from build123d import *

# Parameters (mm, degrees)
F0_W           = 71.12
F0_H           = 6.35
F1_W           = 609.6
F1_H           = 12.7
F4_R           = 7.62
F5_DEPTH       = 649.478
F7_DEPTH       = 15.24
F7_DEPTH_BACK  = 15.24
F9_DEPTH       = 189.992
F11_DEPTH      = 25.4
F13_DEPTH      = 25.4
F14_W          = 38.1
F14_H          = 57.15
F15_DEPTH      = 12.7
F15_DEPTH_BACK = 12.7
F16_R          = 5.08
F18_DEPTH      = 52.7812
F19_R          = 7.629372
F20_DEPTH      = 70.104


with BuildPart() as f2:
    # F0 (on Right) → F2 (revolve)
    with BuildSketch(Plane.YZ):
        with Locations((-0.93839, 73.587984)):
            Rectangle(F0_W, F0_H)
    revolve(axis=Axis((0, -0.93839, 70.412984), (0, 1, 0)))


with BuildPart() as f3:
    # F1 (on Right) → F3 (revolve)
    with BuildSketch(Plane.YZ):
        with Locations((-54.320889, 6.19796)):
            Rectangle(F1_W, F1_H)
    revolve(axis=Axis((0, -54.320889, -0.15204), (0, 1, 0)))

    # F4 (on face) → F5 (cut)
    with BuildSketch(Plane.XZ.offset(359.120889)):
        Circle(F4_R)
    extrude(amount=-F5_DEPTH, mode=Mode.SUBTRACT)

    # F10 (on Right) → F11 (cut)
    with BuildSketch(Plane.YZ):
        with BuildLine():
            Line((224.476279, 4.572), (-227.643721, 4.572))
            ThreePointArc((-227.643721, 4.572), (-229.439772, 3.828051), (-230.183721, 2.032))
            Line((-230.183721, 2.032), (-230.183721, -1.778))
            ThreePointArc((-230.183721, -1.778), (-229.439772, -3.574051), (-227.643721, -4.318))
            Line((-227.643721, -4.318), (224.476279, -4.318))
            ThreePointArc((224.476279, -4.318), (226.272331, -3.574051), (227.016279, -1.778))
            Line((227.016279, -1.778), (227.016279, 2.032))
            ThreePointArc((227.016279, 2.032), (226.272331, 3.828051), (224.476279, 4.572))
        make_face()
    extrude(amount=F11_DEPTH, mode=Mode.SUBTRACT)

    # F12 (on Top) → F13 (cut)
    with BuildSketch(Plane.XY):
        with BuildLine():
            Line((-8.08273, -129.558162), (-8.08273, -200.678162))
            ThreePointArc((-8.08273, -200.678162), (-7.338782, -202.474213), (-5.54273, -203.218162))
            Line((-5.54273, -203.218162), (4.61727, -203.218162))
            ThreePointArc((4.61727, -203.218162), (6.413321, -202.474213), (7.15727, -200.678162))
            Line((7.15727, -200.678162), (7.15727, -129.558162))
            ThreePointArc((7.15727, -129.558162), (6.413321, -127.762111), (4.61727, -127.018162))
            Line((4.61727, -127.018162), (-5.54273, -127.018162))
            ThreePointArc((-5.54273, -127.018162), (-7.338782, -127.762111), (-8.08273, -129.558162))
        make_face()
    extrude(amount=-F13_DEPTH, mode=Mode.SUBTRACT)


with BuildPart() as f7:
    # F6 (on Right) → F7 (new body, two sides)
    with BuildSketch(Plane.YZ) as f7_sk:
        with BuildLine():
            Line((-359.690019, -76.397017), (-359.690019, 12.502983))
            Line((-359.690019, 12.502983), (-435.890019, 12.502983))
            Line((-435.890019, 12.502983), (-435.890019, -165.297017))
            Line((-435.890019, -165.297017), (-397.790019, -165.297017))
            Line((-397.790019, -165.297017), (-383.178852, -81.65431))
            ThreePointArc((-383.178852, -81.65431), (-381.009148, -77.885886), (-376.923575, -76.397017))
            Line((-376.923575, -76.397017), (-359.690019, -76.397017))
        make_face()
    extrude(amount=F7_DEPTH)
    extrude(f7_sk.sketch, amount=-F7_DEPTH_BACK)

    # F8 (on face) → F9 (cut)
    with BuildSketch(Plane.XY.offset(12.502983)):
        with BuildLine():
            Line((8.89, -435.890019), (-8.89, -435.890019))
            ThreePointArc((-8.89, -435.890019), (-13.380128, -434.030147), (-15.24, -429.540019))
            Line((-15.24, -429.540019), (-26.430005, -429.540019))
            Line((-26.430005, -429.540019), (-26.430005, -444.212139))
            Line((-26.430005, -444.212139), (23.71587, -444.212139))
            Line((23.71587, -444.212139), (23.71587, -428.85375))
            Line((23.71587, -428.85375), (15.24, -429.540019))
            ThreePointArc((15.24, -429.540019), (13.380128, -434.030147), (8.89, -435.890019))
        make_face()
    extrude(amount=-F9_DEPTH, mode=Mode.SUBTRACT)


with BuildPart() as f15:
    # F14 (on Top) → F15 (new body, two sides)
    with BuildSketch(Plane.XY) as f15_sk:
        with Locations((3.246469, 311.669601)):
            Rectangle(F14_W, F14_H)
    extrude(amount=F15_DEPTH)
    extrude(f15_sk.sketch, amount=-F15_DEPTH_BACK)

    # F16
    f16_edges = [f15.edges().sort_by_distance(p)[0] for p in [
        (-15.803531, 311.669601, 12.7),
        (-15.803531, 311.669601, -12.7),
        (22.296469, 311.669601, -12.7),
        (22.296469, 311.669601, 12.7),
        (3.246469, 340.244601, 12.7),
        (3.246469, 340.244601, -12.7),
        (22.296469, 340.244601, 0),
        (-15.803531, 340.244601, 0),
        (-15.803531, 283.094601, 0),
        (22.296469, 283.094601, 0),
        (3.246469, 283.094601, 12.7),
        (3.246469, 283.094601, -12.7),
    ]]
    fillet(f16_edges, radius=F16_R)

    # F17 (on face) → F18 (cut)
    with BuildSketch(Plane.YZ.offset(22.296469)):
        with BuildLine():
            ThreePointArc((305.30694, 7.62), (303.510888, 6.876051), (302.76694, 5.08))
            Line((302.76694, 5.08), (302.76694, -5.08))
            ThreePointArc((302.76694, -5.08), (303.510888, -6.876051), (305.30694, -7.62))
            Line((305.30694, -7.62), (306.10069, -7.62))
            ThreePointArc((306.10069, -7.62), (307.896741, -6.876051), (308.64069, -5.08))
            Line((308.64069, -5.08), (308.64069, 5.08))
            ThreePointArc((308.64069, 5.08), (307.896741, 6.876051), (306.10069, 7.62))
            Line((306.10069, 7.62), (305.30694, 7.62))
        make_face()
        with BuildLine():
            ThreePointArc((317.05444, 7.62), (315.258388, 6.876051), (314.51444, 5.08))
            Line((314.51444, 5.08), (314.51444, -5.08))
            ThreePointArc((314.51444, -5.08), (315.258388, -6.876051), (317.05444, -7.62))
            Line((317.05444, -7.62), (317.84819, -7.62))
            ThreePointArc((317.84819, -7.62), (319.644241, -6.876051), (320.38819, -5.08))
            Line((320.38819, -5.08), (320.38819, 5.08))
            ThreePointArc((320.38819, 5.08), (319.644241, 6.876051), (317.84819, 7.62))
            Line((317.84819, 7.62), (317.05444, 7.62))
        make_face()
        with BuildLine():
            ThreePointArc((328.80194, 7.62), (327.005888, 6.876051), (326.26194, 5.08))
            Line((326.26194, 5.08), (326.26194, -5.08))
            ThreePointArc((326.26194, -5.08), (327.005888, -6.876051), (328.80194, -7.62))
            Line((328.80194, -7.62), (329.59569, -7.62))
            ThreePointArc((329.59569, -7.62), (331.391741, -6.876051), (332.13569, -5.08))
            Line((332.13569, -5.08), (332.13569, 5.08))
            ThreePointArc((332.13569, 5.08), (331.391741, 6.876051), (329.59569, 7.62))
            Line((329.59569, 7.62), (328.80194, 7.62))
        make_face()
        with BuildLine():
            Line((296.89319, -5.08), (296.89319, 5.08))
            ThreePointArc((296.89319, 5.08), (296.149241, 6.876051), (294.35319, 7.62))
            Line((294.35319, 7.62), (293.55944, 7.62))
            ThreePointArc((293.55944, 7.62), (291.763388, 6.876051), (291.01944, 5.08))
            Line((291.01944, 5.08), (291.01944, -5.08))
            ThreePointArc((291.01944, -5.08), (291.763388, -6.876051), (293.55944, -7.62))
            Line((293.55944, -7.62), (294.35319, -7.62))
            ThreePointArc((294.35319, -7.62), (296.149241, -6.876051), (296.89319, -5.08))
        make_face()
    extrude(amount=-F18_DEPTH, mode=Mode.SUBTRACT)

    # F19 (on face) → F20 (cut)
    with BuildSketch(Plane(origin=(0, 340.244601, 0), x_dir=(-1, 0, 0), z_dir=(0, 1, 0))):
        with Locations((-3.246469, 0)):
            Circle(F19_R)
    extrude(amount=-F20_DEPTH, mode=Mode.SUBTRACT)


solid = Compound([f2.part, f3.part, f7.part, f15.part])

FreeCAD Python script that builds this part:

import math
import FreeCAD as App
import Part
import Sketcher
from FreeCAD import Vector
Q = App.Units.Quantity

doc = App.newDocument("Part")
params = doc.addObject("Spreadsheet::Sheet", "Params")
for row, (alias, value) in enumerate([
    ("sketch1_width", "2.8 in"),
    ("sketch1_height", "0.25 in"),
    ("revolution_angle", "360 deg"),
    ("sketch2_width", "24 in"),
    ("sketch2_height", "0.5 in"),
    ("revolution2_angle", "360 deg"),
    ("sketch3_diameter", "0.6 in"),
    ("pocket1_length", "25.57 in"),
    ("sketch4_radius", "0.1 in"),
    ("sketch4_width", "17.8 in"),
    ("sketch4_height", "0.15 in"),
    ("pocket2_length", "1 in"),
    ("sketch5_radius", "0.1 in"),
    ("sketch5_width", "0.4 in"),
    ("sketch5_height", "2.8 in"),
    ("pocket3_length", "1 in"),
    ("sketch6_width", "3 in"),
    ("sketch6_height", "7 in"),
    ("sketch6_radius", "0.25 in"),
    ("sketch6_width2", "1.5 in"),
    ("sketch6_height2", "3.5 in"),
    ("pad1_length", "0.6 in"),
    ("pad1_length2", "0.6 in"),
    ("sketch7_radius", "0.25 in"),
    ("sketch7_width", "0.7 in"),
    ("pocket4_length", "7.48 in"),
    ("sketch8_width", "1.5 in"),
    ("sketch8_height", "2.25 in"),
    ("pad2_length", "0.5 in"),
    ("pad2_length2", "0.5 in"),
    ("fillet_radius", "0.2 in"),
    ("sketch9_radius", "0.1 in"),
    ("sketch9_height", "0.4 in"),
    ("sketch9_width", "0.03125 in"),
    ("pocket5_length", "2.078 in"),
    ("pocket6_length", "2.76 in"),
], start=1):
    params.set(f"A{row}", alias)
    params.set(f"B{row}", "=" + value)
    params.setAlias(f"B{row}", alias)

body = doc.addObject("PartDesign::Body", "Body")

# Sketch on YZ plane
sketch1 = body.newObject("Sketcher::SketchObject", "Sketch")
sketch1.AttachmentSupport = (doc.getObject("YZ_Plane"), [""])
sketch1.MapMode = "FlatFace"
sketch1.addGeometry([
    Part.LineSegment(Vector(-36, 77, 0), Vector(-36, 70, 0)),
    Part.LineSegment(Vector(-36, 70, 0), Vector(35, 70, 0)),
    Part.LineSegment(Vector(35, 70, 0), Vector(35, 77, 0)),
    Part.LineSegment(Vector(35, 77, 0), Vector(-36, 77, 0)),
], False)
sketch1.addGeometry(Part.LineSegment(Vector(-36, 70, 0), Vector(35, 70, 0)), True)  # axis
sketch1.addConstraint([
    Sketcher.Constraint("Coincident", 0, 2, 1, 1),
    Sketcher.Constraint("Coincident", 1, 2, 2, 1),
    Sketcher.Constraint("Coincident", 2, 2, 3, 1),
    Sketcher.Constraint("Coincident", 3, 2, 0, 1),
    Sketcher.Constraint("Vertical", 0),
    Sketcher.Constraint("Horizontal", 1),
    Sketcher.Constraint("Vertical", 2),
    Sketcher.Constraint("Horizontal", 3),
    Sketcher.Constraint("Horizontal", 4),
    Sketcher.Constraint("Coincident", 4, 1, 0, 2),
    Sketcher.Constraint("Vertical", 2, 2, 4, 2),
    Sketcher.Constraint("DistanceX", 1, 1, 1, 2, Q("2.8 in")),
    Sketcher.Constraint("DistanceY", 0, 2, 0, 1, Q("0.25 in")),
    Sketcher.Constraint("DistanceX", 0, 2, -1, 1, 36.49839),
    Sketcher.Constraint("DistanceY", -1, 1, 0, 2, 70.412984),
])
sketch1.setExpression("Constraints[11]", "Params.sketch1_width")
sketch1.setExpression("Constraints[12]", "Params.sketch1_height")
revolution = body.newObject("PartDesign::Revolution", "Revolution")
revolution.Profile = sketch1
revolution.ReferenceAxis = (sketch1, ["Axis0"])
revolution.setExpression("Angle", "Params.revolution_angle")
body2 = doc.addObject("PartDesign::Body", "Body001")

# Sketch on YZ plane
sketch2 = body2.newObject("Sketcher::SketchObject", "Sketch001")
sketch2.AttachmentSupport = (doc.getObject("YZ_Plane001"), [""])
sketch2.MapMode = "FlatFace"
sketch2.addGeometry([
    Part.LineSegment(Vector(-359, 13, 0), Vector(-359, 0, 0)),
    Part.LineSegment(Vector(-359, 0, 0), Vector(250, 0, 0)),
    Part.LineSegment(Vector(250, 0, 0), Vector(250, 13, 0)),
    Part.LineSegment(Vector(250, 13, 0), Vector(-359, 13, 0)),
], False)
sketch2.addGeometry(Part.LineSegment(Vector(-359, 0, 0), Vector(250, 0, 0)), True)  # axis
sketch2.addConstraint([
    Sketcher.Constraint("Coincident", 0, 2, 1, 1),
    Sketcher.Constraint("Coincident", 1, 2, 2, 1),
    Sketcher.Constraint("Coincident", 2, 2, 3, 1),
    Sketcher.Constraint("Coincident", 3, 2, 0, 1),
    Sketcher.Constraint("Vertical", 0),
    Sketcher.Constraint("Horizontal", 1),
    Sketcher.Constraint("Vertical", 2),
    Sketcher.Constraint("Horizontal", 3),
    Sketcher.Constraint("Horizontal", 4),
    Sketcher.Constraint("Coincident", 4, 1, 0, 2),
    Sketcher.Constraint("Vertical", 2, 2, 4, 2),
    Sketcher.Constraint("DistanceX", 1, 1, 1, 2, Q("24 in")),
    Sketcher.Constraint("DistanceY", 0, 2, 0, 1, Q("0.5 in")),
    Sketcher.Constraint("DistanceX", 0, 2, -1, 1, 359.120889),
    Sketcher.Constraint("DistanceY", 0, 2, -1, 1, 0.15204),
])
sketch2.setExpression("Constraints[11]", "Params.sketch2_width")
sketch2.setExpression("Constraints[12]", "Params.sketch2_height")
revolution2 = body2.newObject("PartDesign::Revolution", "Revolution001")
revolution2.Profile = sketch2
revolution2.ReferenceAxis = (sketch2, ["Axis0"])
revolution2.setExpression("Angle", "Params.revolution2_angle")

# Sketch on XZ plane
sketch3 = body2.newObject("Sketcher::SketchObject", "Sketch002")
sketch3.AttachmentSupport = (doc.getObject("XZ_Plane001"), [""])
sketch3.MapMode = "FlatFace"
sketch3.AttachmentOffset = App.Placement(Vector(0, 0, 359.120889), App.Rotation())
sketch3.addGeometry(Part.Circle(Vector(0, 0, 0), Vector(0, 0, 1), 8), False)
sketch3.addConstraint([
    Sketcher.Constraint("Coincident", 0, 3, -1, 1),
    Sketcher.Constraint("Diameter", 0, Q("0.6 in")),
])
sketch3.setExpression("Constraints[1]", "Params.sketch3_diameter")
pocket1 = body2.newObject("PartDesign::Pocket", "Pocket")
pocket1.Profile = sketch3
pocket1.setExpression("Length", "Params.pocket1_length")

# Sketch on YZ plane
sketch4 = body2.newObject("Sketcher::SketchObject", "Sketch003")
sketch4.AttachmentSupport = (doc.getObject("YZ_Plane001"), [""])
sketch4.MapMode = "FlatFace"
sketch4.addGeometry([
    Part.LineSegment(Vector(224.5, 4.6, 0), Vector(-227.6, 4.6, 0)),  # 0
    Part.ArcOfCircle(Part.Circle(Vector(-227.6, 2, 0), Vector(0, 0, 1), 2.5), math.radians(90), math.radians(180)),  # 1
    Part.LineSegment(Vector(-230.2, 2, 0), Vector(-230.2, -1.8, 0)),  # 2
    Part.ArcOfCircle(Part.Circle(Vector(-227.6, -1.8, 0), Vector(0, 0, 1), 2.5), math.radians(-180), math.radians(-90)),  # 3
    Part.LineSegment(Vector(-227.6, -4.3, 0), Vector(224.5, -4.3, 0)),  # 4
    Part.ArcOfCircle(Part.Circle(Vector(224.5, -1.8, 0), Vector(0, 0, 1), 2.5), math.radians(-90), math.radians(0)),  # 5
    Part.LineSegment(Vector(227, -1.8, 0), Vector(227, 2, 0)),  # 6
    Part.ArcOfCircle(Part.Circle(Vector(224.5, 2, 0), Vector(0, 0, 1), 2.5), math.radians(0), math.radians(90)),  # 7
], False)
sketch4.addConstraint([
    Sketcher.Constraint("Tangent", 0, 2, 1, 1),
    Sketcher.Constraint("Tangent", 1, 2, 2, 1),
    Sketcher.Constraint("Tangent", 2, 2, 3, 1),
    Sketcher.Constraint("Tangent", 3, 2, 4, 1),
    Sketcher.Constraint("Tangent", 4, 2, 5, 1),
    Sketcher.Constraint("Tangent", 5, 2, 6, 1),
    Sketcher.Constraint("Tangent", 6, 2, 7, 1),
    Sketcher.Constraint("Tangent", 7, 2, 0, 1),
    Sketcher.Constraint("Horizontal", 0),
    Sketcher.Constraint("Vertical", 2),
    Sketcher.Constraint("Horizontal", 4),
    Sketcher.Constraint("Vertical", 6),
    Sketcher.Constraint("Equal", 1, 3),
    Sketcher.Constraint("Equal", 3, 5),
    Sketcher.Constraint("Equal", 5, 7),
    Sketcher.Constraint("Radius", 1, Q("0.1 in")),
    Sketcher.Constraint("DistanceX", 0, 2, 0, 1, Q("17.8 in")),
    Sketcher.Constraint("DistanceY", 2, 2, 2, 1, Q("0.15 in")),
    Sketcher.Constraint("DistanceY", -1, 1, 1, 3, Q("0.08 in")),
    Sketcher.Constraint("DistanceX", 1, 3, -1, 1, 227.64372),
])
sketch4.setExpression("Constraints[15]", "Params.sketch4_radius")
sketch4.setExpression("Constraints[16]", "Params.sketch4_width")
sketch4.setExpression("Constraints[17]", "Params.sketch4_height")
pocket2 = body2.newObject("PartDesign::Pocket", "Pocket001")
pocket2.Profile = sketch4
pocket2.setExpression("Length", "Params.pocket2_length")
pocket2.Reversed = True

# Sketch on XY plane
sketch5 = body2.newObject("Sketcher::SketchObject", "Sketch004")
sketch5.AttachmentSupport = (doc.getObject("XY_Plane001"), [""])
sketch5.MapMode = "FlatFace"
sketch5.addGeometry([
    Part.LineSegment(Vector(-8.1, -129.6, 0), Vector(-8.1, -200.7, 0)),  # 0
    Part.ArcOfCircle(Part.Circle(Vector(-5.5, -200.7, 0), Vector(0, 0, 1), 2.5), math.radians(180), math.radians(270)),  # 1
    Part.LineSegment(Vector(-5.5, -203.2, 0), Vector(4.6, -203.2, 0)),  # 2
    Part.ArcOfCircle(Part.Circle(Vector(4.6, -200.7, 0), Vector(0, 0, 1), 2.5), math.radians(-90), math.radians(0)),  # 3
    Part.LineSegment(Vector(7.2, -200.7, 0), Vector(7.2, -129.6, 0)),  # 4
    Part.ArcOfCircle(Part.Circle(Vector(4.6, -129.6, 0), Vector(0, 0, 1), 2.5), math.radians(0), math.radians(90)),  # 5
    Part.LineSegment(Vector(4.6, -127, 0), Vector(-5.5, -127, 0)),  # 6
    Part.ArcOfCircle(Part.Circle(Vector(-5.5, -129.6, 0), Vector(0, 0, 1), 2.5), math.radians(90), math.radians(180)),  # 7
], False)
sketch5.addConstraint([
    Sketcher.Constraint("Tangent", 0, 2, 1, 1),
    Sketcher.Constraint("Tangent", 1, 2, 2, 1),
    Sketcher.Constraint("Tangent", 2, 2, 3, 1),
    Sketcher.Constraint("Tangent", 3, 2, 4, 1),
    Sketcher.Constraint("Tangent", 4, 2, 5, 1),
    Sketcher.Constraint("Tangent", 5, 2, 6, 1),
    Sketcher.Constraint("Tangent", 6, 2, 7, 1),
    Sketcher.Constraint("Tangent", 7, 2, 0, 1),
    Sketcher.Constraint("Vertical", 0),
    Sketcher.Constraint("Horizontal", 2),
    Sketcher.Constraint("Vertical", 4),
    Sketcher.Constraint("Horizontal", 6),
    Sketcher.Constraint("Equal", 1, 3),
    Sketcher.Constraint("Equal", 3, 5),
    Sketcher.Constraint("Equal", 5, 7),
    Sketcher.Constraint("Radius", 1, Q("0.1 in")),
    Sketcher.Constraint("DistanceX", 2, 1, 2, 2, Q("0.4 in")),
    Sketcher.Constraint("DistanceY", 0, 2, 0, 1, Q("2.8 in")),
    Sketcher.Constraint("DistanceX", 1, 3, -1, 1, 5.542731),
    Sketcher.Constraint("DistanceY", 3, 3, -1, 1, 200.678161),
])
sketch5.setExpression("Constraints[15]", "Params.sketch5_radius")
sketch5.setExpression("Constraints[16]", "Params.sketch5_width")
sketch5.setExpression("Constraints[17]", "Params.sketch5_height")
pocket3 = body2.newObject("PartDesign::Pocket", "Pocket002")
pocket3.Profile = sketch5
pocket3.setExpression("Length", "Params.pocket3_length")
body3 = doc.addObject("PartDesign::Body", "Body002")

# Sketch on YZ plane
sketch6 = body3.newObject("Sketcher::SketchObject", "Sketch005")
sketch6.AttachmentSupport = (doc.getObject("YZ_Plane002"), [""])
sketch6.MapMode = "FlatFace"
sketch6.addGeometry([
    Part.LineSegment(Vector(-360, -76, 0), Vector(-360, 13, 0)),  # 0
    Part.LineSegment(Vector(-360, 13, 0), Vector(-436, 13, 0)),  # 1
    Part.LineSegment(Vector(-436, 13, 0), Vector(-436, -165, 0)),  # 2
    Part.LineSegment(Vector(-436, -165, 0), Vector(-398, -165, 0)),  # 3
    Part.LineSegment(Vector(-398, -165, 0), Vector(-383, -82, 0)),  # 4
    Part.ArcOfCircle(Part.Circle(Vector(-377, -83, 0), Vector(0, 0, 1), 6), math.radians(90), math.radians(170)),  # 5
    Part.LineSegment(Vector(-377, -76, 0), Vector(-360, -76, 0)),  # 6
], False)
sketch6.addConstraint([
    Sketcher.Constraint("Coincident", 0, 2, 1, 1),
    Sketcher.Constraint("Coincident", 1, 2, 2, 1),
    Sketcher.Constraint("Coincident", 2, 2, 3, 1),
    Sketcher.Constraint("Coincident", 3, 2, 4, 1),
    Sketcher.Constraint("Tangent", 4, 2, 5, 2),
    Sketcher.Constraint("Tangent", 5, 1, 6, 1),
    Sketcher.Constraint("Coincident", 6, 2, 0, 1),
    Sketcher.Constraint("Vertical", 0),
    Sketcher.Constraint("Horizontal", 1),
    Sketcher.Constraint("Vertical", 2),
    Sketcher.Constraint("Horizontal", 3),
    Sketcher.Constraint("Horizontal", 6),
    Sketcher.Constraint("DistanceX", 1, 2, 1, 1, Q("3 in")),
    Sketcher.Constraint("DistanceY", 2, 2, 2, 1, Q("7 in")),
    Sketcher.Constraint("Radius", 5, Q("0.25 in")),
    Sketcher.Constraint("DistanceX", 3, 1, 3, 2, Q("1.5 in")),
    Sketcher.Constraint("DistanceY", 0, 1, 0, 2, Q("3.5 in")),
    Sketcher.Constraint("DistanceX", 6, 1, 6, 2, 17.233556),
    Sketcher.Constraint("DistanceX", 0, 2, -1, 1, 359.690019),
    Sketcher.Constraint("DistanceY", 4, 2, -1, 1, 81.65431),
])
sketch6.setExpression("Constraints[12]", "Params.sketch6_width")
sketch6.setExpression("Constraints[13]", "Params.sketch6_height")
sketch6.setExpression("Constraints[14]", "Params.sketch6_radius")
sketch6.setExpression("Constraints[15]", "Params.sketch6_width2")
sketch6.setExpression("Constraints[16]", "Params.sketch6_height2")
pad1 = body3.newObject("PartDesign::Pad", "Pad")
pad1.Profile = sketch6
pad1.Type = "TwoLengths"
pad1.setExpression("Length", "Params.pad1_length")
pad1.setExpression("Length2", "Params.pad1_length2")

# Sketch on XY plane
sketch7 = body3.newObject("Sketcher::SketchObject", "Sketch006")
sketch7.AttachmentSupport = (doc.getObject("XY_Plane002"), [""])
sketch7.MapMode = "FlatFace"
sketch7.AttachmentOffset = App.Placement(Vector(0, 0, 12.502983), App.Rotation())
sketch7.addGeometry([
    Part.LineSegment(Vector(9, -436, 0), Vector(-9, -436, 0)),  # 0
    Part.ArcOfCircle(Part.Circle(Vector(-9, -430, 0), Vector(0, 0, 1), 6), math.radians(-180), math.radians(-90)),  # 1
    Part.LineSegment(Vector(-15, -430, 0), Vector(-26, -430, 0)),  # 2
    Part.LineSegment(Vector(-26, -430, 0), Vector(-26, -444, 0)),  # 3
    Part.LineSegment(Vector(-26, -444, 0), Vector(24, -444, 0)),  # 4
    Part.LineSegment(Vector(24, -444, 0), Vector(24, -429, 0)),  # 5
    Part.LineSegment(Vector(24, -429, 0), Vector(15, -430, 0)),  # 6
    Part.ArcOfCircle(Part.Circle(Vector(9, -430, 0), Vector(0, 0, 1), 6), math.radians(-90), math.radians(0)),  # 7
], False)
sketch7.addConstraint([
    Sketcher.Constraint("Tangent", 0, 2, 1, 2),
    Sketcher.Constraint("Coincident", 1, 1, 2, 1),
    Sketcher.Constraint("Coincident", 2, 2, 3, 1),
    Sketcher.Constraint("Coincident", 3, 2, 4, 1),
    Sketcher.Constraint("Coincident", 4, 2, 5, 1),
    Sketcher.Constraint("Coincident", 5, 2, 6, 1),
    Sketcher.Constraint("Coincident", 6, 2, 7, 2),
    Sketcher.Constraint("Tangent", 7, 1, 0, 1),
    Sketcher.Constraint("Horizontal", 0),
    Sketcher.Constraint("Horizontal", 2),
    Sketcher.Constraint("Vertical", 3),
    Sketcher.Constraint("Horizontal", 4),
    Sketcher.Constraint("Vertical", 5),
    Sketcher.Constraint("Equal", 1, 7),
    Sketcher.Constraint("Symmetric", 1, 1, 6, 2, -2),
    Sketcher.Constraint("Horizontal", 7, 3, 1, 1),
    Sketcher.Constraint("Radius", 1, Q("0.25 in")),
    Sketcher.Constraint("DistanceX", 0, 2, 0, 1, Q("0.7 in")),
    Sketcher.Constraint("DistanceY", 3, 2, 3, 1, 14.67212),
    Sketcher.Constraint("DistanceY", 5, 1, 5, 2, 15.358389),
    Sketcher.Constraint("DistanceX", 2, 2, 2, 1, 11.190005),
    Sketcher.Constraint("DistanceX", 4, 1, 4, 2, 50.145875),
    Sketcher.Constraint("DistanceY", 1, 3, -1, 1, 429.540019),
])
sketch7.setExpression("Constraints[16]", "Params.sketch7_radius")
sketch7.setExpression("Constraints[17]", "Params.sketch7_width")
pocket4 = body3.newObject("PartDesign::Pocket", "Pocket003")
pocket4.Profile = sketch7
pocket4.setExpression("Length", "Params.pocket4_length")
body4 = doc.addObject("PartDesign::Body", "Body003")

# Sketch on XY plane
sketch8 = body4.newObject("Sketcher::SketchObject", "Sketch007")
sketch8.AttachmentSupport = (doc.getObject("XY_Plane003"), [""])
sketch8.MapMode = "FlatFace"
sketch8.addGeometry([
    Part.LineSegment(Vector(-16, 340, 0), Vector(-16, 283, 0)),
    Part.LineSegment(Vector(-16, 283, 0), Vector(22, 283, 0)),
    Part.LineSegment(Vector(22, 283, 0), Vector(22, 340, 0)),
    Part.LineSegment(Vector(22, 340, 0), Vector(-16, 340, 0)),
], False)
sketch8.addConstraint([
    Sketcher.Constraint("Coincident", 0, 2, 1, 1),
    Sketcher.Constraint("Coincident", 1, 2, 2, 1),
    Sketcher.Constraint("Coincident", 2, 2, 3, 1),
    Sketcher.Constraint("Coincident", 3, 2, 0, 1),
    Sketcher.Constraint("Vertical", 0),
    Sketcher.Constraint("Horizontal", 1),
    Sketcher.Constraint("Vertical", 2),
    Sketcher.Constraint("Horizontal", 3),
    Sketcher.Constraint("DistanceX", 1, 1, 1, 2, Q("1.5 in")),
    Sketcher.Constraint("DistanceY", 0, 2, 0, 1, Q("2.25 in")),
    Sketcher.Constraint("DistanceY", -1, 1, 0, 2, 283.094601),
    Sketcher.Constraint("DistanceX", 0, 2, -1, 1, 15.803531),
])
sketch8.setExpression("Constraints[8]", "Params.sketch8_width")
sketch8.setExpression("Constraints[9]", "Params.sketch8_height")
pad2 = body4.newObject("PartDesign::Pad", "Pad001")
pad2.Profile = sketch8
pad2.Type = "TwoLengths"
pad2.setExpression("Length", "Params.pad2_length")
pad2.setExpression("Length2", "Params.pad2_length2")
doc.recompute()

fillet = body4.newObject("PartDesign::Fillet", "Fillet")
fillet.Base = (pad2, ["Edge1"])
fillet.UseAllEdges = True
fillet.setExpression("Radius", "Params.fillet_radius")

# Sketch on YZ plane
sketch9 = body4.newObject("Sketcher::SketchObject", "Sketch008")
sketch9.AttachmentSupport = (doc.getObject("YZ_Plane003"), [""])
sketch9.MapMode = "FlatFace"
sketch9.AttachmentOffset = App.Placement(Vector(0, 0, 22.296469), App.Rotation())
sketch9.addGeometry([
    Part.ArcOfCircle(Part.Circle(Vector(305.3, 5.1, 0), Vector(0, 0, 1), 2.5), math.radians(90), math.radians(180)),  # 0
    Part.LineSegment(Vector(302.8, 5.1, 0), Vector(302.8, -5.1, 0)),  # 1
    Part.ArcOfCircle(Part.Circle(Vector(305.3, -5.1, 0), Vector(0, 0, 1), 2.5), math.radians(180), math.radians(270)),  # 2
    Part.LineSegment(Vector(305.3, -7.6, 0), Vector(306.1, -7.6, 0)),  # 3
    Part.ArcOfCircle(Part.Circle(Vector(306.1, -5.1, 0), Vector(0, 0, 1), 2.5), math.radians(-90), math.radians(0)),  # 4
    Part.LineSegment(Vector(308.6, -5.1, 0), Vector(308.6, 5.1, 0)),  # 5
    Part.ArcOfCircle(Part.Circle(Vector(306.1, 5.1, 0), Vector(0, 0, 1), 2.5), math.radians(0), math.radians(90)),  # 6
    Part.LineSegment(Vector(306.1, 7.6, 0), Vector(305.3, 7.6, 0)),  # 7
    Part.ArcOfCircle(Part.Circle(Vector(317.1, 5.1, 0), Vector(0, 0, 1), 2.5), math.radians(90), math.radians(180)),  # 8
    Part.LineSegment(Vector(314.5, 5.1, 0), Vector(314.5, -5.1, 0)),  # 9
    Part.ArcOfCircle(Part.Circle(Vector(317.1, -5.1, 0), Vector(0, 0, 1), 2.5), math.radians(180), math.radians(270)),  # 10
    Part.LineSegment(Vector(317.1, -7.6, 0), Vector(317.8, -7.6, 0)),  # 11
    Part.ArcOfCircle(Part.Circle(Vector(317.8, -5.1, 0), Vector(0, 0, 1), 2.5), math.radians(-90), math.radians(0)),  # 12
    Part.LineSegment(Vector(320.4, -5.1, 0), Vector(320.4, 5.1, 0)),  # 13
    Part.ArcOfCircle(Part.Circle(Vector(317.8, 5.1, 0), Vector(0, 0, 1), 2.5), math.radians(0), math.radians(90)),  # 14
    Part.LineSegment(Vector(317.8, 7.6, 0), Vector(317.1, 7.6, 0)),  # 15
    Part.ArcOfCircle(Part.Circle(Vector(328.8, 5.1, 0), Vector(0, 0, 1), 2.5), math.radians(90), math.radians(180)),  # 16
    Part.LineSegment(Vector(326.3, 5.1, 0), Vector(326.3, -5.1, 0)),  # 17
    Part.ArcOfCircle(Part.Circle(Vector(328.8, -5.1, 0), Vector(0, 0, 1), 2.5), math.radians(180), math.radians(270)),  # 18
    Part.LineSegment(Vector(328.8, -7.6, 0), Vector(329.6, -7.6, 0)),  # 19
    Part.ArcOfCircle(Part.Circle(Vector(329.6, -5.1, 0), Vector(0, 0, 1), 2.5), math.radians(-90), math.radians(0)),  # 20
    Part.LineSegment(Vector(332.1, -5.1, 0), Vector(332.1, 5.1, 0)),  # 21
    Part.ArcOfCircle(Part.Circle(Vector(329.6, 5.1, 0), Vector(0, 0, 1), 2.5), math.radians(0), math.radians(90)),  # 22
    Part.LineSegment(Vector(329.6, 7.6, 0), Vector(328.8, 7.6, 0)),  # 23
    Part.LineSegment(Vector(296.9, -5.1, 0), Vector(296.9, 5.1, 0)),  # 24
    Part.ArcOfCircle(Part.Circle(Vector(294.4, 5.1, 0), Vector(0, 0, 1), 2.5), math.radians(0), math.radians(90)),  # 25
    Part.LineSegment(Vector(294.4, 7.6, 0), Vector(293.6, 7.6, 0)),  # 26
    Part.ArcOfCircle(Part.Circle(Vector(293.6, 5.1, 0), Vector(0, 0, 1), 2.5), math.radians(90), math.radians(180)),  # 27
    Part.LineSegment(Vector(291, 5.1, 0), Vector(291, -5.1, 0)),  # 28
    Part.ArcOfCircle(Part.Circle(Vector(293.6, -5.1, 0), Vector(0, 0, 1), 2.5), math.radians(180), math.radians(270)),  # 29
    Part.LineSegment(Vector(293.6, -7.6, 0), Vector(294.4, -7.6, 0)),  # 30
    Part.ArcOfCircle(Part.Circle(Vector(294.4, -5.1, 0), Vector(0, 0, 1), 2.5), math.radians(-90), math.radians(0)),  # 31
], False)
sketch9.addConstraint([
    Sketcher.Constraint("Tangent", 0, 2, 1, 1),
    Sketcher.Constraint("Tangent", 1, 2, 2, 1),
    Sketcher.Constraint("Tangent", 2, 2, 3, 1),
    Sketcher.Constraint("Tangent", 3, 2, 4, 1),
    Sketcher.Constraint("Tangent", 4, 2, 5, 1),
    Sketcher.Constraint("Tangent", 5, 2, 6, 1),
    Sketcher.Constraint("Tangent", 6, 2, 7, 1),
    Sketcher.Constraint("Tangent", 7, 2, 0, 1),
    Sketcher.Constraint("Tangent", 8, 2, 9, 1),
    Sketcher.Constraint("Tangent", 9, 2, 10, 1),
    Sketcher.Constraint("Tangent", 10, 2, 11, 1),
    Sketcher.Constraint("Tangent", 11, 2, 12, 1),
    Sketcher.Constraint("Tangent", 12, 2, 13, 1),
    Sketcher.Constraint("Tangent", 13, 2, 14, 1),
    Sketcher.Constraint("Tangent", 14, 2, 15, 1),
    Sketcher.Constraint("Tangent", 15, 2, 8, 1),
    Sketcher.Constraint("Tangent", 16, 2, 17, 1),
    Sketcher.Constraint("Tangent", 17, 2, 18, 1),
    Sketcher.Constraint("Tangent", 18, 2, 19, 1),
    Sketcher.Constraint("Tangent", 19, 2, 20, 1),
    Sketcher.Constraint("Tangent", 20, 2, 21, 1),
    Sketcher.Constraint("Tangent", 21, 2, 22, 1),
    Sketcher.Constraint("Tangent", 22, 2, 23, 1),
    Sketcher.Constraint("Tangent", 23, 2, 16, 1),
    Sketcher.Constraint("Tangent", 24, 2, 25, 1),
    Sketcher.Constraint("Tangent", 25, 2, 26, 1),
    Sketcher.Constraint("Tangent", 26, 2, 27, 1),
    Sketcher.Constraint("Tangent", 27, 2, 28, 1),
    Sketcher.Constraint("Tangent", 28, 2, 29, 1),
    Sketcher.Constraint("Tangent", 29, 2, 30, 1),
    Sketcher.Constraint("Tangent", 30, 2, 31, 1),
    Sketcher.Constraint("Tangent", 31, 2, 24, 1),
    Sketcher.Constraint("Vertical", 1),
    Sketcher.Constraint("Horizontal", 3),
    Sketcher.Constraint("Vertical", 5),
    Sketcher.Constraint("Horizontal", 7),
    Sketcher.Constraint("Vertical", 9),
    Sketcher.Constraint("Horizontal", 11),
    Sketcher.Constraint("Vertical", 13),
    Sketcher.Constraint("Horizontal", 15),
    Sketcher.Constraint("Vertical", 17),
    Sketcher.Constraint("Horizontal", 19),
    Sketcher.Constraint("Vertical", 21),
    Sketcher.Constraint("Horizontal", 23),
    Sketcher.Constraint("Vertical", 24),
    Sketcher.Constraint("Horizontal", 26),
    Sketcher.Constraint("Vertical", 28),
    Sketcher.Constraint("Horizontal", 30),
    Sketcher.Constraint("Equal", 0, 2),
    Sketcher.Constraint("Equal", 2, 4),
    Sketcher.Constraint("Equal", 4, 6),
    Sketcher.Constraint("Equal", 6, 8),
    Sketcher.Constraint("Equal", 8, 10),
    Sketcher.Constraint("Equal", 10, 12),
    Sketcher.Constraint("Equal", 12, 14),
    Sketcher.Constraint("Equal", 14, 16),
    Sketcher.Constraint("Equal", 16, 18),
    Sketcher.Constraint("Equal", 18, 20),
    Sketcher.Constraint("Equal", 20, 22),
    Sketcher.Constraint("Equal", 22, 25),
    Sketcher.Constraint("Equal", 25, 27),
    Sketcher.Constraint("Equal", 27, 29),
    Sketcher.Constraint("Equal", 29, 31),
    Sketcher.Constraint("Horizontal", 6, 3, 8, 3),
    Sketcher.Constraint("Horizontal", 4, 3, 10, 3),
    Sketcher.Constraint("Horizontal", 14, 3, 16, 3),
    Sketcher.Constraint("Horizontal", 12, 3, 18, 3),
    Sketcher.Constraint("Horizontal", 22, 3, 25, 3),
    Sketcher.Constraint("Horizontal", 20, 3, 29, 3),
    Sketcher.Constraint("Equal", 7, 11),
    Sketcher.Constraint("Equal", 15, 19),
    Sketcher.Constraint("Equal", 23, 26),
    Sketcher.Constraint("Radius", 0, Q("0.1 in")),
    Sketcher.Constraint("DistanceY", 1, 2, 1, 1, Q("0.4 in")),
    Sketcher.Constraint("DistanceY", -1, 1, 0, 3, Q("0.2 in")),
    Sketcher.Constraint("DistanceX", 3, 1, 3, 2, Q("0.03125 in")),
    Sketcher.Constraint("DistanceX", 0, 3, 8, 3, Q("0.4625 in")),
    Sketcher.Constraint("DistanceX", 8, 3, 16, 3, Q("0.4625 in")),
    Sketcher.Constraint("DistanceX", 25, 3, 6, 3, Q("0.4625 in")),
    Sketcher.Constraint("DistanceX", -1, 1, 0, 3, 305.306939),
])
sketch9.setExpression("Constraints[72]", "Params.sketch9_radius")
sketch9.setExpression("Constraints[73]", "Params.sketch9_height")
sketch9.setExpression("Constraints[75]", "Params.sketch9_width")
pocket5 = body4.newObject("PartDesign::Pocket", "Pocket004")
pocket5.Profile = sketch9
pocket5.setExpression("Length", "Params.pocket5_length")

# Sketch on XZ plane
sketch10 = body4.newObject("Sketcher::SketchObject", "Sketch009")
sketch10.AttachmentSupport = (doc.getObject("XZ_Plane003"), [""])
sketch10.MapMode = "FlatFace"
sketch10.AttachmentOffset = App.Placement(Vector(0, 0, -340.244601), App.Rotation())
sketch10.addGeometry(Part.Circle(Vector(3, 0, 0), Vector(0, 0, 1), 8), False)
sketch10.addConstraint([
    Sketcher.Constraint("PointOnObject", 0, 3, -1),
    Sketcher.Constraint("Diameter", 0, 15.258744),
    Sketcher.Constraint("DistanceX", -1, 1, 0, 3, 3.246469),
])
pocket6 = body4.newObject("PartDesign::Pocket", "Pocket005")
pocket6.Profile = sketch10
pocket6.setExpression("Length", "Params.pocket6_length")
pocket6.Reversed = True

doc.recompute()
